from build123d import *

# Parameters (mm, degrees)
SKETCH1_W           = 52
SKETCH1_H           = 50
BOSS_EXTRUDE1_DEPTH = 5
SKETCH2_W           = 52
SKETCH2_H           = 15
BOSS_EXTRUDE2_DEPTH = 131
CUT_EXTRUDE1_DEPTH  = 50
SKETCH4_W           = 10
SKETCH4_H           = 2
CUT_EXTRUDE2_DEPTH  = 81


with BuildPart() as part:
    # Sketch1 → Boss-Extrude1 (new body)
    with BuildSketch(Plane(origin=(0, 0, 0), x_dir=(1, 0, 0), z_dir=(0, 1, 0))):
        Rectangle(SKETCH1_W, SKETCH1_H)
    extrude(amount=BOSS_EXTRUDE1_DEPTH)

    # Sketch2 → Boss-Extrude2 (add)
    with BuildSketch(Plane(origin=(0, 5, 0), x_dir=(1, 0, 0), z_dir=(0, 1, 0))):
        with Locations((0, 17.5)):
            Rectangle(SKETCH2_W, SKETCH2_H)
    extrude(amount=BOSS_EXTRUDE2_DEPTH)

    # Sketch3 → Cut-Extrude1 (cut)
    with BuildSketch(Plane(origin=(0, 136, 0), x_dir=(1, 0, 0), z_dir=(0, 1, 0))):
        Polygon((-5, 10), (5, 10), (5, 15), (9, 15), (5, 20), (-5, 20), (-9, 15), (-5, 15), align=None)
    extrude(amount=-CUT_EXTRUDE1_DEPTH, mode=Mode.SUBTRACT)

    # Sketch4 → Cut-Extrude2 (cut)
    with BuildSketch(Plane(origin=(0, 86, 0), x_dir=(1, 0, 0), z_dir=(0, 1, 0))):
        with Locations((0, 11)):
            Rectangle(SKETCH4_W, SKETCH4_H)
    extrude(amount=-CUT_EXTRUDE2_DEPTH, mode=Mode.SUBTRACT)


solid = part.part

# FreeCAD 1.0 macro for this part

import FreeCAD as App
import Part
import Sketcher

V = App.Vector
Q = App.Units.Quantity


def add_polygon(sketch, points):
    """Adds a closed chain of lines whose ends are joined by coincident constraints."""
    first, n = sketch.GeometryCount, len(points)
    for a, b in zip(points, points[1:] + points[:1]):
        sketch.addGeometry(Part.LineSegment(App.Vector(*a, 0), App.Vector(*b, 0)), False)
    for i in range(n):
        sketch.addConstraint(Sketcher.Constraint("Coincident", first + i, 2, first + (i + 1) % n, 1))

doc = App.newDocument("Part")
params = doc.addObject("Spreadsheet::Sheet", "Params")
for row, (alias, value) in enumerate([
    ("sketch1_width", "52 mm"),
    ("sketch1_height", "50 mm"),
    ("pad1_length", "5 mm"),
    ("sketch2_width", "52 mm"),
    ("sketch2_height", "15 mm"),
    ("pad2_length", "131 mm"),
    ("sketch3_width", "10 mm"),
    ("sketch3_width2", "4 mm"),
    ("sketch3_height", "5 mm"),
    ("pocket1_length", "50 mm"),
    ("sketch4_width", "10 mm"),
    ("sketch4_height", "2 mm"),
    ("pocket2_length", "81 mm"),
], start=1):
    params.set(f"A{row}", alias)
    params.set(f"B{row}", "=" + value)
    params.setAlias(f"B{row}", alias)

body = doc.addObject("PartDesign::Body", "Body")

# Sketch on XZ plane
sketch1 = body.newObject("Sketcher::SketchObject", "Sketch")
sketch1.AttachmentSupport = (doc.getObject("XZ_Plane"), [""])
sketch1.MapMode = "FlatFace"
add_polygon(sketch1, [(-26, -25), (-26, 25), (26, 25), (26, -25)])  # lines 0-3
sketch1.addConstraint([
    Sketcher.Constraint("Vertical", 0),
    Sketcher.Constraint("Horizontal", 1),
    Sketcher.Constraint("Vertical", 2),
    Sketcher.Constraint("Horizontal", 3),
    Sketcher.Constraint("Symmetric", 0, 2, 2, 2, -1, 1),
    Sketcher.Constraint("DistanceX", 1, 1, 1, 2, Q("52 mm")),
    Sketcher.Constraint("DistanceY", 0, 1, 0, 2, Q("50 mm")),
])
sketch1.setExpression("Constraints[9]", "Params.sketch1_width")
sketch1.setExpression("Constraints[10]", "Params.sketch1_height")
pad1 = body.newObject("PartDesign::Pad", "Pad")
pad1.Profile = sketch1
pad1.setExpression("Length", "Params.pad1_length")
pad1.Reversed = True

# Sketch on XZ plane
sketch2 = body.newObject("Sketcher::SketchObject", "Sketch001")
sketch2.AttachmentSupport = (doc.getObject("XZ_Plane"), [""])
sketch2.MapMode = "FlatFace"
sketch2.AttachmentOffset = App.Placement(V(0, 0, -5), App.Rotation())
add_polygon(sketch2, [(-26, -25), (-26, -10), (26, -10), (26, -25)])  # lines 0-3
sketch2.addConstraint([
    Sketcher.Constraint("Vertical", 0),
    Sketcher.Constraint("Horizontal", 1),
    Sketcher.Constraint("Vertical", 2),
    Sketcher.Constraint("Horizontal", 3),
    Sketcher.Constraint("DistanceX", 1, 1, 1, 2, Q("52 mm")),
    Sketcher.Constraint("DistanceY", 0, 1, 0, 2, Q("15 mm")),
    Sketcher.Constraint("DistanceX", 0, 2, -1, 1, Q("26 mm")),
    Sketcher.Constraint("DistanceY", 0, 2, -1, 1, Q("10 mm")),
])
sketch2.setExpression("Constraints[8]", "Params.sketch2_width")
sketch2.setExpression("Constraints[9]", "Params.sketch2_height")
pad2 = body.newObject("PartDesign::Pad", "Pad001")
pad2.Profile = sketch2
pad2.setExpression("Length", "Params.pad2_length")
pad2.Reversed = True

# Sketch on XZ plane
sketch3 = body.newObject("Sketcher::SketchObject", "Sketch002")
sketch3.AttachmentSupport = (doc.getObject("XZ_Plane"), [""])
sketch3.MapMode = "FlatFace"
sketch3.AttachmentOffset = App.Placement(V(0, 0, -136), App.Rotation())
add_polygon(sketch3, [(-5, -10), (5, -10), (5, -15), (9, -15), (5, -20), (-5, -20), (-9, -15), (-5, -15)])  # lines 0-7
sketch3.addConstraint([
    Sketcher.Constraint("Horizontal", 0),
    Sketcher.Constraint("Vertical", 1),
    Sketcher.Constraint("Horizontal", 2),
    Sketcher.Constraint("Horizontal", 4),
    Sketcher.Constraint("Horizontal", 6),
    Sketcher.Constraint("Vertical", 7),
    Sketcher.Constraint("Symmetric", 2, 2, 5, 2, -2),
    Sketcher.Constraint("Vertical", 1, 2, 3, 2),
    Sketcher.Constraint("Vertical", 4, 2, 6, 2),
    Sketcher.Constraint("Equal", 2, 6),
    Sketcher.Constraint("DistanceX", 0, 1, 0, 2, Q("10 mm")),
    Sketcher.Constraint("DistanceX", 2, 1, 2, 2, Q("4 mm")),
    Sketcher.Constraint("DistanceY", 1, 2, 1, 1, Q("5 mm")),
    Sketcher.Constraint("DistanceY", 0, 2, -1, 1, Q("10 mm")),
    Sketcher.Constraint("DistanceY", 3, 2, -1, 1, Q("20 mm")),
])
sketch3.setExpression("Constraints[18]", "Params.sketch3_width")
sketch3.setExpression("Constraints[19]", "Params.sketch3_width2")
sketch3.setExpression("Constraints[20]", "Params.sketch3_height")
pocket1 = body.newObject("PartDesign::Pocket", "Pocket")
pocket1.Profile = sketch3
pocket1.setExpression("Length", "Params.pocket1_length")
pocket1.Reversed = True

# Sketch on XZ plane
sketch4 = body.newObject("Sketcher::SketchObject", "Sketch003")
sketch4.AttachmentSupport = (doc.getObject("XZ_Plane"), [""])
sketch4.MapMode = "FlatFace"
sketch4.AttachmentOffset = App.Placement(V(0, 0, -86), App.Rotation())
add_polygon(sketch4, [(-5, -12), (-5, -10), (5, -10), (5, -12)])  # lines 0-3
sketch4.addConstraint([
    Sketcher.Constraint("Vertical", 0),
    Sketcher.Constraint("Horizontal", 1),
    Sketcher.Constraint("Vertical", 2),
    Sketcher.Constraint("Horizontal", 3),
    Sketcher.Constraint("DistanceX", 1, 1, 1, 2, Q("10 mm")),
    Sketcher.Constraint("DistanceY", 0, 1, 0, 2, Q("2 mm")),
    Sketcher.Constraint("DistanceX", 0, 2, -1, 1, Q("5 mm")),
    Sketcher.Constraint("DistanceY", 0, 2, -1, 1, Q("10 mm")),
])
sketch4.setExpression("Constraints[8]", "Params.sketch4_width")
sketch4.setExpression("Constraints[9]", "Params.sketch4_height")
pocket2 = body.newObject("PartDesign::Pocket", "Pocket001")
pocket2.Profile = sketch4
pocket2.setExpression("Length", "Params.pocket2_length")
pocket2.Reversed = True

doc.recompute()
